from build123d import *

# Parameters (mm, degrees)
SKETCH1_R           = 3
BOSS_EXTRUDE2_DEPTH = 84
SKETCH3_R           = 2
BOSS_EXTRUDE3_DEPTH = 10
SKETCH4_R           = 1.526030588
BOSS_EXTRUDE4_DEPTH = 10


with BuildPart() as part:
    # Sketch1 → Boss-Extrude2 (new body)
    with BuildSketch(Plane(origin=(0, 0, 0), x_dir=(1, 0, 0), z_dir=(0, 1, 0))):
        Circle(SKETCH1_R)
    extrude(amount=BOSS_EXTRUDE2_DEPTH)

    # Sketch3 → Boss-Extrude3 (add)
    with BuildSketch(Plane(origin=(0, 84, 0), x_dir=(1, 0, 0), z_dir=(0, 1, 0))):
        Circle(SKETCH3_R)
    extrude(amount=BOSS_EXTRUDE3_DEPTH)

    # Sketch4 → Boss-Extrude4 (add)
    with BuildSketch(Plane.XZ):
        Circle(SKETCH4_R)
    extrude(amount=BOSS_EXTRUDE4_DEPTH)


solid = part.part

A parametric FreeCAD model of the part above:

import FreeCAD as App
import Part
import Sketcher

V = App.Vector
Q = App.Units.Quantity

doc = App.newDocument("Part")
body = doc.addObject("PartDesign::Body", "Body")

# Sketch on XZ plane
sketch1 = body.newObject("Sketcher::SketchObject", "Sketch")
sketch1.AttachmentSupport = (doc.getObject("XZ_Plane"), [""])
sketch1.MapMode = "FlatFace"
sketch1.addGeometry(Part.Circle(V(0, 0, 0), V(0, 0, 1), 3), False)
sketch1.addConstraint([
    Sketcher.Constraint("Coincident", 0, 3, -1, 1),
    Sketcher.Constraint("Diameter", 0, Q("6 mm")),
])
pad1 = body.newObject("PartDesign::Pad", "Pad")
pad1.Profile = sketch1
pad1.Length = 84
pad1.Reversed = True

# Sketch on XZ plane
sketch2 = body.newObject("Sketcher::SketchObject", "Sketch001")
sketch2.AttachmentSupport = (doc.getObject("XZ_Plane"), [""])
sketch2.MapMode = "FlatFace"
sketch2.AttachmentOffset = App.Placement(V(0, 0, -84), App.Rotation())
sketch2.addGeometry(Part.Circle(V(0, 0, 0), V(0, 0, 1), 2), False)
sketch2.addConstraint([
    Sketcher.Constraint("Coincident", 0, 3, -1, 1),
    Sketcher.Constraint("Diameter", 0, Q("4 mm")),
])
pad2 = body.newObject("PartDesign::Pad", "Pad001")
pad2.Profile = sketch2
pad2.Length = 10
pad2.Reversed = True

# Sketch on XZ plane
sketch3 = body.newObject("Sketcher::SketchObject", "Sketch002")
sketch3.AttachmentSupport = (doc.getObject("XZ_Plane"), [""])
sketch3.MapMode = "FlatFace"
sketch3.addGeometry(Part.Circle(V(0, 0, 0), V(0, 0, 1), 1.526031), False)
sketch3.addConstraint([
    Sketcher.Constraint("Coincident", 0, 3, -1, 1),
    Sketcher.Constraint("Diameter", 0, Q("3.052061 mm")),
])
pad3 = body.newObject("PartDesign::Pad", "Pad002")
pad3.Profile = sketch3
pad3.Length = 10

doc.recompute()
